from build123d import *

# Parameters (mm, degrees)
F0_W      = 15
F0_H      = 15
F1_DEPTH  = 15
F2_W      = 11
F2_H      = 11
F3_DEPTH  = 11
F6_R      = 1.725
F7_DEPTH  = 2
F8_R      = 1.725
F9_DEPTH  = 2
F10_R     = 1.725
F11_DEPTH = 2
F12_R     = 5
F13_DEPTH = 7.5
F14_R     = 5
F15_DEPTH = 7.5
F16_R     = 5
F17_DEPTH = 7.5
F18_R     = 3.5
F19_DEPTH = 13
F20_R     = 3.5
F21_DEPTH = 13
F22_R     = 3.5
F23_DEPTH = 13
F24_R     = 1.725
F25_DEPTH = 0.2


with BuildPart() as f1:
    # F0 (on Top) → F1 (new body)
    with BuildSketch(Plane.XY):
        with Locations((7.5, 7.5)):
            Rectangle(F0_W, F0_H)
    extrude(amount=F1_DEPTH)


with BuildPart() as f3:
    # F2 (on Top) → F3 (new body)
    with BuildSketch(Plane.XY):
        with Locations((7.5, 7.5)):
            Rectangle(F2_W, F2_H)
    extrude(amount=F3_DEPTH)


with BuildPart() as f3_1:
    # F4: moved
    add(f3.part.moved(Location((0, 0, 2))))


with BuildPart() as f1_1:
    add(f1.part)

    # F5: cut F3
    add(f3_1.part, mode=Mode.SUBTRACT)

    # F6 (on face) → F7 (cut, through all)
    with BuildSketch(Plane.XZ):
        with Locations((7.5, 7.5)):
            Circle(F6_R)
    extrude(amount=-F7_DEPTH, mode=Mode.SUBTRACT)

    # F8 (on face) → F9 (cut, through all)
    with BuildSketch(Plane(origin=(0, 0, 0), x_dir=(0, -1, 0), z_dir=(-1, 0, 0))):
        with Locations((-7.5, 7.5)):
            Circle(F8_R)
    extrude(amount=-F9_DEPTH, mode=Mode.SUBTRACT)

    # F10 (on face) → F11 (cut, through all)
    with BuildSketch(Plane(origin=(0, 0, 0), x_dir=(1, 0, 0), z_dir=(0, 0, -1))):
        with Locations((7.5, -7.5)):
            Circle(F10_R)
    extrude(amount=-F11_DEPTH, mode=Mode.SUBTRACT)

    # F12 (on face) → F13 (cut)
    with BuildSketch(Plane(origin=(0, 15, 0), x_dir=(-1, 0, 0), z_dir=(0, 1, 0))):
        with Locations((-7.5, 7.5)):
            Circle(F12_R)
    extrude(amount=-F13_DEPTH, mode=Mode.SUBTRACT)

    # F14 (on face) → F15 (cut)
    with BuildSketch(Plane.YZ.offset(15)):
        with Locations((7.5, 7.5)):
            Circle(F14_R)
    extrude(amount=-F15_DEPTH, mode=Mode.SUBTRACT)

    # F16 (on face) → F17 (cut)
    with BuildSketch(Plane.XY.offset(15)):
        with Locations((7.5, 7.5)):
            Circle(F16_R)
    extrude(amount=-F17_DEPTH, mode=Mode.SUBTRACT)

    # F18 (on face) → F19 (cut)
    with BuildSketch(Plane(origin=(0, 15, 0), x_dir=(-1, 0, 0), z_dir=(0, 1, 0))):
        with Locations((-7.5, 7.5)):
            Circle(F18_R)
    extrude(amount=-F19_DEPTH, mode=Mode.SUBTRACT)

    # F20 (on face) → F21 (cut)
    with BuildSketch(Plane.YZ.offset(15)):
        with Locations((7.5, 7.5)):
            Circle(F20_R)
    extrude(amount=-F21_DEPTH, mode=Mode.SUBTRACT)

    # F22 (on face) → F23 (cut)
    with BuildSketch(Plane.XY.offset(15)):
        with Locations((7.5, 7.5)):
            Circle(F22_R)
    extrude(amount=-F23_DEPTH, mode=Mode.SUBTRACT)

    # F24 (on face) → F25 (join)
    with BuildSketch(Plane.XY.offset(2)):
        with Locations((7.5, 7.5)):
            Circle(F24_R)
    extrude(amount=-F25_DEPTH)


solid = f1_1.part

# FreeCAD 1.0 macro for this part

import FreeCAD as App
import Part
import Sketcher
Q = App.Units.Quantity


def add_polygon(sketch, points):
    """Adds a closed chain of lines whose ends are joined by coincident constraints."""
    first, n = sketch.GeometryCount, len(points)
    for a, b in zip(points, points[1:] + points[:1]):
        sketch.addGeometry(Part.LineSegment(App.Vector(*a, 0), App.Vector(*b, 0)), False)
    for i in range(n):
        sketch.addConstraint(Sketcher.Constraint("Coincident", first + i, 2, first + (i + 1) % n, 1))

doc = App.newDocument("Part")
body = doc.addObject("PartDesign::Body", "Body")

# Sketch on XY plane
sketch1 = body.newObject("Sketcher::SketchObject", "Sketch")
sketch1.AttachmentSupport = (doc.getObject("XY_Plane"), [""])
sketch1.MapMode = "FlatFace"
add_polygon(sketch1, [(0, 15), (0, 0), (15, 0), (15, 15)])  # lines 0-3
sketch1.addConstraint([
    Sketcher.Constraint("Vertical", 0),
    Sketcher.Constraint("Horizontal", 1),
    Sketcher.Constraint("Vertical", 2),
    Sketcher.Constraint("Horizontal", 3),
    Sketcher.Constraint("Coincident", 0, 2, -1, 1),
    Sketcher.Constraint("Equal", 3, 0),
    Sketcher.Constraint("DistanceX", 1, 1, 1, 2, Q("15 mm")),
])
pad1 = body.newObject("PartDesign::Pad", "Pad")
pad1.Profile = sketch1
pad1.Length = 15
body2 = doc.addObject("PartDesign::Body", "Body001")

# Sketch on XY plane
sketch2 = body2.newObject("Sketcher::SketchObject", "Sketch001")
sketch2.AttachmentSupport = (doc.getObject("XY_Plane001"), [""])
sketch2.MapMode = "FlatFace"
add_polygon(sketch2, [(2, 13), (2, 2), (13, 2), (13, 13)])  # lines 0-3
sketch2.addConstraint([
    Sketcher.Constraint("Vertical", 0),
    Sketcher.Constraint("Horizontal", 1),
    Sketcher.Constraint("Vertical", 2),
    Sketcher.Constraint("Horizontal", 3),
    Sketcher.Constraint("Equal", 3, 0),
    Sketcher.Constraint("DistanceX", 1, 1, 1, 2, Q("11 mm")),
    Sketcher.Constraint("DistanceX", -1, 1, 0, 2, Q("2 mm")),
    Sketcher.Constraint("DistanceY", -1, 1, 0, 2, Q("2 mm")),
])
pad2 = body2.newObject("PartDesign::Pad", "Pad001")
pad2.Profile = sketch2
pad2.Length = 11
body3 = doc.addObject("PartDesign::Body", "Body002")
doc.recompute()

body2.Placement = App.Placement(App.Vector(0, 0, 2), App.Rotation(App.Vector(0, 0, 1), 0))
boolean = body3.newObject("PartDesign::Boolean", "Boolean")
boolean.Type = "Fuse"
boolean.addObjects([body2])
doc.recompute()

boolean2 = body.newObject("PartDesign::Boolean", "Boolean001")
boolean2.Type = "Cut"
boolean2.addObjects([body3])

# Sketch on XZ plane
sketch3 = body.newObject("Sketcher::SketchObject", "Sketch002")
sketch3.AttachmentSupport = (doc.getObject("XZ_Plane"), [""])
sketch3.MapMode = "FlatFace"
sketch3.addGeometry(Part.Circle(App.Vector(7.5, 7.5, 0), App.Vector(0, 0, 1), 1.7), False)
sketch3.addConstraint([
    Sketcher.Constraint("Diameter", 0, Q("3.45 mm")),
    Sketcher.Constraint("DistanceX", -1, 1, 0, 3, Q("7.5 mm")),
    Sketcher.Constraint("DistanceY", -1, 1, 0, 3, Q("7.5 mm")),
])
pocket1 = body.newObject("PartDesign::Pocket", "Pocket")
pocket1.Profile = sketch3
pocket1.Length = 2

# Sketch on YZ plane
sketch4 = body.newObject("Sketcher::SketchObject", "Sketch003")
sketch4.AttachmentSupport = (doc.getObject("YZ_Plane"), [""])
sketch4.MapMode = "FlatFace"
sketch4.addGeometry(Part.Circle(App.Vector(7.5, 7.5, 0), App.Vector(0, 0, 1), 1.7), False)
sketch4.addConstraint([
    Sketcher.Constraint("Diameter", 0, Q("3.45 mm")),
    Sketcher.Constraint("DistanceX", -1, 1, 0, 3, Q("7.5 mm")),
    Sketcher.Constraint("DistanceY", -1, 1, 0, 3, Q("7.5 mm")),
])
pocket2 = body.newObject("PartDesign::Pocket", "Pocket001")
pocket2.Profile = sketch4
pocket2.Length = 2
pocket2.Reversed = True

# Sketch on XY plane
sketch5 = body.newObject("Sketcher::SketchObject", "Sketch004")
sketch5.AttachmentSupport = (doc.getObject("XY_Plane"), [""])
sketch5.MapMode = "FlatFace"
sketch5.addGeometry(Part.Circle(App.Vector(7.5, 7.5, 0), App.Vector(0, 0, 1), 1.7), False)
sketch5.addConstraint([
    Sketcher.Constraint("Diameter", 0, Q("3.45 mm")),
    Sketcher.Constraint("DistanceX", -1, 1, 0, 3, Q("7.5 mm")),
    Sketcher.Constraint("DistanceY", -1, 1, 0, 3, Q("7.5 mm")),
])
pocket3 = body.newObject("PartDesign::Pocket", "Pocket002")
pocket3.Profile = sketch5
pocket3.Length = 2
pocket3.Reversed = True

# Sketch on XZ plane
sketch6 = body.newObject("Sketcher::SketchObject", "Sketch005")
sketch6.AttachmentSupport = (doc.getObject("XZ_Plane"), [""])
sketch6.MapMode = "FlatFace"
sketch6.AttachmentOffset = App.Placement(App.Vector(0, 0, -15), App.Rotation())
sketch6.addGeometry(Part.Circle(App.Vector(8, 8, 0), App.Vector(0, 0, 1), 5), False)
sketch6.addConstraint([
    Sketcher.Constraint("Diameter", 0, Q("10 mm")),
    Sketcher.Constraint("DistanceX", -1, 1, 0, 3, Q("7.5 mm")),
    Sketcher.Constraint("DistanceY", -1, 1, 0, 3, Q("7.5 mm")),
])
pocket4 = body.newObject("PartDesign::Pocket", "Pocket003")
pocket4.Profile = sketch6
pocket4.Length = 7.5
pocket4.Reversed = True

# Sketch on YZ plane
sketch7 = body.newObject("Sketcher::SketchObject", "Sketch006")
sketch7.AttachmentSupport = (doc.getObject("YZ_Plane"), [""])
sketch7.MapMode = "FlatFace"
sketch7.AttachmentOffset = App.Placement(App.Vector(0, 0, 15), App.Rotation())
sketch7.addGeometry(Part.Circle(App.Vector(8, 8, 0), App.Vector(0, 0, 1), 5), False)
sketch7.addConstraint([
    Sketcher.Constraint("Diameter", 0, Q("10 mm")),
    Sketcher.Constraint("DistanceX", -1, 1, 0, 3, Q("7.5 mm")),
    Sketcher.Constraint("DistanceY", -1, 1, 0, 3, Q("7.5 mm")),
])
pocket5 = body.newObject("PartDesign::Pocket", "Pocket004")
pocket5.Profile = sketch7
pocket5.Length = 7.5

# Sketch on XY plane
sketch8 = body.newObject("Sketcher::SketchObject", "Sketch007")
sketch8.AttachmentSupport = (doc.getObject("XY_Plane"), [""])
sketch8.MapMode = "FlatFace"
sketch8.AttachmentOffset = App.Placement(App.Vector(0, 0, 15), App.Rotation())
sketch8.addGeometry(Part.Circle(App.Vector(8, 8, 0), App.Vector(0, 0, 1), 5), False)
sketch8.addConstraint([
    Sketcher.Constraint("Diameter", 0, Q("10 mm")),
    Sketcher.Constraint("DistanceX", -1, 1, 0, 3, Q("7.5 mm")),
    Sketcher.Constraint("DistanceY", -1, 1, 0, 3, Q("7.5 mm")),
])
pocket6 = body.newObject("PartDesign::Pocket", "Pocket005")
pocket6.Profile = sketch8
pocket6.Length = 7.5

# Sketch on XZ plane
sketch9 = body.newObject("Sketcher::SketchObject", "Sketch008")
sketch9.AttachmentSupport = (doc.getObject("XZ_Plane"), [""])
sketch9.MapMode = "FlatFace"
sketch9.AttachmentOffset = App.Placement(App.Vector(0, 0, -15), App.Rotation())
sketch9.addGeometry(Part.Circle(App.Vector(7.5, 7.5, 0), App.Vector(0, 0, 1), 3.5), False)
sketch9.addConstraint([
    Sketcher.Constraint("Diameter", 0, Q("7 mm")),
    Sketcher.Constraint("DistanceX", -1, 1, 0, 3, Q("7.5 mm")),
    Sketcher.Constraint("DistanceY", -1, 1, 0, 3, Q("7.5 mm")),
])
pocket7 = body.newObject("PartDesign::Pocket", "Pocket006")
pocket7.Profile = sketch9
pocket7.Length = 13
pocket7.Reversed = True

# Sketch on YZ plane
sketch10 = body.newObject("Sketcher::SketchObject", "Sketch009")
sketch10.AttachmentSupport = (doc.getObject("YZ_Plane"), [""])
sketch10.MapMode = "FlatFace"
sketch10.AttachmentOffset = App.Placement(App.Vector(0, 0, 15), App.Rotation())
sketch10.addGeometry(Part.Circle(App.Vector(7.5, 7.5, 0), App.Vector(0, 0, 1), 3.5), False)
sketch10.addConstraint([
    Sketcher.Constraint("Diameter", 0, Q("7 mm")),
    Sketcher.Constraint("DistanceX", -1, 1, 0, 3, Q("7.5 mm")),
    Sketcher.Constraint("DistanceY", -1, 1, 0, 3, Q("7.5 mm")),
])
pocket8 = body.newObject("PartDesign::Pocket", "Pocket007")
pocket8.Profile = sketch10
pocket8.Length = 13

# Sketch on XY plane
sketch11 = body.newObject("Sketcher::SketchObject", "Sketch010")
sketch11.AttachmentSupport = (doc.getObject("XY_Plane"), [""])
sketch11.MapMode = "FlatFace"
sketch11.AttachmentOffset = App.Placement(App.Vector(0, 0, 15), App.Rotation())
sketch11.addGeometry(Part.Circle(App.Vector(7.5, 7.5, 0), App.Vector(0, 0, 1), 3.5), False)
sketch11.addConstraint([
    Sketcher.Constraint("Diameter", 0, Q("7 mm")),
    Sketcher.Constraint("DistanceX", -1, 1, 0, 3, Q("7.5 mm")),
    Sketcher.Constraint("DistanceY", -1, 1, 0, 3, Q("7.5 mm")),
])
pocket9 = body.newObject("PartDesign::Pocket", "Pocket008")
pocket9.Profile = sketch11
pocket9.Length = 13

# Sketch on XY plane
sketch12 = body.newObject("Sketcher::SketchObject", "Sketch011")
sketch12.AttachmentSupport = (doc.getObject("XY_Plane"), [""])
sketch12.MapMode = "FlatFace"
sketch12.AttachmentOffset = App.Placement(App.Vector(0, 0, 2), App.Rotation())
sketch12.addGeometry(Part.Circle(App.Vector(7.5, 7.5, 0), App.Vector(0, 0, 1), 1.7), False)
sketch12.addConstraint([
    Sketcher.Constraint("Diameter", 0, Q("3.45 mm")),
    Sketcher.Constraint("DistanceX", -1, 1, 0, 3, Q("7.5 mm")),
    Sketcher.Constraint("DistanceY", -1, 1, 0, 3, Q("7.5 mm")),
])
pad3 = body.newObject("PartDesign::Pad", "Pad002")
pad3.Profile = sketch12
pad3.Length = 0.2
pad3.Reversed = True

doc.recompute()
